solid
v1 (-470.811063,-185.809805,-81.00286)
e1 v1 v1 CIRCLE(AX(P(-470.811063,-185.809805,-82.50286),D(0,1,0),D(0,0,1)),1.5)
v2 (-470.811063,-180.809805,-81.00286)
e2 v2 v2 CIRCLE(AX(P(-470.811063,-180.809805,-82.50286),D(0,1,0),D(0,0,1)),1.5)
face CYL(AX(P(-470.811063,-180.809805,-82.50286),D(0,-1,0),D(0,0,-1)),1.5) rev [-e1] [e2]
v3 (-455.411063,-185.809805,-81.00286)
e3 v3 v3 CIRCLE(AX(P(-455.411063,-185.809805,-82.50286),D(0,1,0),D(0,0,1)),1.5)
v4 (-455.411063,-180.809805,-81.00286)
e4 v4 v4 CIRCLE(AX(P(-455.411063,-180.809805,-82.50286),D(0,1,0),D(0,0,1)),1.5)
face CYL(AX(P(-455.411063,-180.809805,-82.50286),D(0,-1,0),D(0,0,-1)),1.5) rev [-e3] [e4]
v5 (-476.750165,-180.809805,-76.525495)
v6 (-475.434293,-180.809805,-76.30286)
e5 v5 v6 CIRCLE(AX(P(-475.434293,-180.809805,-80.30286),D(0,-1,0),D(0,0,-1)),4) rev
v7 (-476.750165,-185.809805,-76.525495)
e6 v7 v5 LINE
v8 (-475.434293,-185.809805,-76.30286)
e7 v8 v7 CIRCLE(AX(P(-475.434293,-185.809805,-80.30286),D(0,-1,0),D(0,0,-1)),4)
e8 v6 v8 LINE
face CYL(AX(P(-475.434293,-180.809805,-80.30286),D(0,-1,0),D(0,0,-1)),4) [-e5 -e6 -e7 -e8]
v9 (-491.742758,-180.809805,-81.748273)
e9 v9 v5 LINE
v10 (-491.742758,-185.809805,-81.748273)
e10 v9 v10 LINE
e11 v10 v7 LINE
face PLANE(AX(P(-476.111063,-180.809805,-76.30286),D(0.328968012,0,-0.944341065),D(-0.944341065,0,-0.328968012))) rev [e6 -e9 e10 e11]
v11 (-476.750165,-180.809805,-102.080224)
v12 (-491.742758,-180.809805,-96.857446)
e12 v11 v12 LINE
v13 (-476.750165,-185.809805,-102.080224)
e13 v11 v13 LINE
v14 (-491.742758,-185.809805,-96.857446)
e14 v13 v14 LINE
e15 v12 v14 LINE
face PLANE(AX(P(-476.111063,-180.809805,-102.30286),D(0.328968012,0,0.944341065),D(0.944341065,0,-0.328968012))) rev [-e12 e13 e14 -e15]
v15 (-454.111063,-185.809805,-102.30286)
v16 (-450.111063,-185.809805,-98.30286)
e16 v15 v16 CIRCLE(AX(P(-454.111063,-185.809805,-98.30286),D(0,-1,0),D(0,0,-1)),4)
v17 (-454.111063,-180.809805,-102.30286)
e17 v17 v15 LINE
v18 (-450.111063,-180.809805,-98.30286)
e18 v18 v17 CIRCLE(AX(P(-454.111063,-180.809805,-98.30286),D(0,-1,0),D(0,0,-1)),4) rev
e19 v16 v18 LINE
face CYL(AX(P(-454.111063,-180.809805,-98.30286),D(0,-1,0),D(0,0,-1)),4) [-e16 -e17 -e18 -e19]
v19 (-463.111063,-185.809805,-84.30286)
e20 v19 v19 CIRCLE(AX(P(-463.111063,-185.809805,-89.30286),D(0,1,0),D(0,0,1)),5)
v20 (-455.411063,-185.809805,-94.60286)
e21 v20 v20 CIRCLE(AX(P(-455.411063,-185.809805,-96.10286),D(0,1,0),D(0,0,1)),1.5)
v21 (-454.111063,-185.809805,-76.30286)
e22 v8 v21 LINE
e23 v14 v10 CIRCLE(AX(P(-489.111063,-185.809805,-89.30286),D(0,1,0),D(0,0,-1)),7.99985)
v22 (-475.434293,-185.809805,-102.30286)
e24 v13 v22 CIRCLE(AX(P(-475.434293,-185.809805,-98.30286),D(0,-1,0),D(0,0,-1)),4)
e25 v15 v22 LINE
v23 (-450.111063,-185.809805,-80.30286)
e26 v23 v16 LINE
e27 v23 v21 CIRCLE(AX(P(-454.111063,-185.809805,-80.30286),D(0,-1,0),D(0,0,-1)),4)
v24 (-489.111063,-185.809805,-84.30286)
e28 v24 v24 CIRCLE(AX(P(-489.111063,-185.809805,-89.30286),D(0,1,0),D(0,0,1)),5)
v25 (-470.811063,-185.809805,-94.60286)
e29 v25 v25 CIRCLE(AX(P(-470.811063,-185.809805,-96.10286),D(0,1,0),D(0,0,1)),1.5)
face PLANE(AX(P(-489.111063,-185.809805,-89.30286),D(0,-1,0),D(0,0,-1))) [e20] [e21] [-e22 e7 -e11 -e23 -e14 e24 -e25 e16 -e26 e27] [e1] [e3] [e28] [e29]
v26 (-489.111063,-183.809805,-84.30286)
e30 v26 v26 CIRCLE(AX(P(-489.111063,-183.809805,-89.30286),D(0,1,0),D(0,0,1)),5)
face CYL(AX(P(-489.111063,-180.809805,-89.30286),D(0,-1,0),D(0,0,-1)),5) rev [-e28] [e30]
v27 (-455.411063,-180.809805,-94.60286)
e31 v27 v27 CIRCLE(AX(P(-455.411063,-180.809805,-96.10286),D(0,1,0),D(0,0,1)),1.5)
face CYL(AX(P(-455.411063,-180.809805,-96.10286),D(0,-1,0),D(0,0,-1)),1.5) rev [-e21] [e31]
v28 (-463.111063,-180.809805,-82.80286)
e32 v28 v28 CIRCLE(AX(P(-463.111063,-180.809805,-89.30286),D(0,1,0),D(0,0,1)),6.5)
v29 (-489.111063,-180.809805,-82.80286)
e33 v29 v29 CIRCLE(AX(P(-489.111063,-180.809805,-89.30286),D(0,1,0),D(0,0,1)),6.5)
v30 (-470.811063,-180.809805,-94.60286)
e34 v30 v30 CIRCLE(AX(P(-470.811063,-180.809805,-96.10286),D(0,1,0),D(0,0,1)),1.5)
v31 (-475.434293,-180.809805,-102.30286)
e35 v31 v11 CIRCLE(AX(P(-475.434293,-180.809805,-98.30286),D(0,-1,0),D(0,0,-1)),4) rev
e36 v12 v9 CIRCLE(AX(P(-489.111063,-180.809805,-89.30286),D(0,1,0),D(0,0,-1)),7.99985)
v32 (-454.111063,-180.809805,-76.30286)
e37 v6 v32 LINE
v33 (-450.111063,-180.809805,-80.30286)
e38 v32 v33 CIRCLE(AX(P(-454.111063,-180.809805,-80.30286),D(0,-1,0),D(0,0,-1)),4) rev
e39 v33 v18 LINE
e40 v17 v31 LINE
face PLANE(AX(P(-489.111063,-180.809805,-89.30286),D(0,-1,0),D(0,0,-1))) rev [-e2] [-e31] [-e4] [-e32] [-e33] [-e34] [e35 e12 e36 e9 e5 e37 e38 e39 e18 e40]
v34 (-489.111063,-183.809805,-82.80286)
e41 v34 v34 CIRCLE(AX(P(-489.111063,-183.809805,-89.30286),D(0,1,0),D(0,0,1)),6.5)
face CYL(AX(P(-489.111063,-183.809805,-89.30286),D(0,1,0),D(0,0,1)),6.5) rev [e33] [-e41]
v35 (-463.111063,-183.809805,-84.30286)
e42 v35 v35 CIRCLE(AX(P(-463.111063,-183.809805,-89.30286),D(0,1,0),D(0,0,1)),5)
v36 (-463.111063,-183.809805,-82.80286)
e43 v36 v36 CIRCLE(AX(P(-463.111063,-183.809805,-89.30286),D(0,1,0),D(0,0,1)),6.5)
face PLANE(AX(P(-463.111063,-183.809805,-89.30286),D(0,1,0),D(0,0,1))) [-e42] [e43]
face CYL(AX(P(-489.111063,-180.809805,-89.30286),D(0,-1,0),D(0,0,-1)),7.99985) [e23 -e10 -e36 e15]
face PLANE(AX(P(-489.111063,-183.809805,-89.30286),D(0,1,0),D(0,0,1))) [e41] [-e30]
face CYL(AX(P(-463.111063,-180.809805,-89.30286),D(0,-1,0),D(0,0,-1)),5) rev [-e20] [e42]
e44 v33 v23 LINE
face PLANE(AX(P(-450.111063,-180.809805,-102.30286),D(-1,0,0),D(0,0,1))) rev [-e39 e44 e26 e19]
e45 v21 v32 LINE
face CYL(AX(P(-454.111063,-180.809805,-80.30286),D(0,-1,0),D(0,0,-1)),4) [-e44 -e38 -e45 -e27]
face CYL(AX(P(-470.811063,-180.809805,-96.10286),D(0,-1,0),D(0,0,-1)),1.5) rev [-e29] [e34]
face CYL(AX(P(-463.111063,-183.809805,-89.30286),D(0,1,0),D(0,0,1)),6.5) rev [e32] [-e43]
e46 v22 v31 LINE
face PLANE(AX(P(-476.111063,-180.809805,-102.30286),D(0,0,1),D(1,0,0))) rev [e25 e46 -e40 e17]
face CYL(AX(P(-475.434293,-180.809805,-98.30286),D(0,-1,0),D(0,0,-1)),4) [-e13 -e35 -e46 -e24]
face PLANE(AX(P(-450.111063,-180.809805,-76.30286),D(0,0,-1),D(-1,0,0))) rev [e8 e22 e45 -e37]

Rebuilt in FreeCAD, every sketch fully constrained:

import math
import FreeCAD as App
import Part
import Sketcher


def edges_at(feature, points):
    """Names of the edges that pass closest to the given points."""
    edges = feature.Shape.Edges
    near = lambda p: min(range(len(edges)), key=lambda i: edges[i].distToShape(Part.Vertex(*p))[0])
    return sorted({f"Edge{near(p) + 1}" for p in points})

doc = App.newDocument("Part")
body = doc.addObject("PartDesign::Body", "Body")

# Sketch on XZ plane
sketch1 = doc.addObject("Sketcher::SketchObject", "Sketch")
body.addObject(sketch1)
sketch1.AttachmentSupport = (doc.XZ_Plane, [""])
sketch1.MapMode = "FlatFace"
sketch1.AttachmentOffset = App.Placement(App.Vector(0, 0, 185.809805), App.Rotation())
sketch1.addGeometry(Part.LineSegment(App.Vector(-476.1, -76.3, 0), App.Vector(-450.1, -76.3, 0)), False)
sketch1.addGeometry(Part.LineSegment(App.Vector(-450.1, -76.3, 0), App.Vector(-450.1, -102.3, 0)), False)
sketch1.addGeometry(Part.LineSegment(App.Vector(-450.1, -102.3, 0), App.Vector(-476.1, -102.3, 0)), False)
sketch1.addGeometry(Part.LineSegment(App.Vector(-476.1, -102.3, 0), App.Vector(-491.7, -96.9, 0)), False)
sketch1.addGeometry(Part.ArcOfCircle(Part.Circle(App.Vector(-489.1, -89.3, 0), App.Vector(0, 0, 1), 8), math.radians(109), math.radians(251)), False)
sketch1.addGeometry(Part.LineSegment(App.Vector(-491.7, -81.7, 0), App.Vector(-476.1, -76.3, 0)), False)
sketch1.addGeometry(Part.Circle(App.Vector(-455.4, -82.5, 0), App.Vector(0, 0, 1), 1.5), False)
sketch1.addGeometry(Part.Circle(App.Vector(-470.8, -82.5, 0), App.Vector(0, 0, 1), 1.5), False)
sketch1.addGeometry(Part.Circle(App.Vector(-463.1, -89.3, 0), App.Vector(0, 0, 1), 5), False)
sketch1.addGeometry(Part.Circle(App.Vector(-489.1, -89.3, 0), App.Vector(0, 0, 1), 5), False)
sketch1.addGeometry(Part.Circle(App.Vector(-455.4, -96.1, 0), App.Vector(0, 0, 1), 1.5), False)
sketch1.addGeometry(Part.Circle(App.Vector(-470.8, -96.1, 0), App.Vector(0, 0, 1), 1.5), False)
sketch1.addConstraint(Sketcher.Constraint("Coincident", 0, 2, 1, 1))
sketch1.addConstraint(Sketcher.Constraint("Coincident", 1, 2, 2, 1))
sketch1.addConstraint(Sketcher.Constraint("Coincident", 2, 2, 3, 1))
sketch1.addConstraint(Sketcher.Constraint("Tangent", 3, 2, 4, 2))
sketch1.addConstraint(Sketcher.Constraint("Tangent", 4, 1, 5, 1))
sketch1.addConstraint(Sketcher.Constraint("Coincident", 5, 2, 0, 1))
sketch1.addConstraint(Sketcher.Constraint("Horizontal", 0))
sketch1.addConstraint(Sketcher.Constraint("Vertical", 1))
sketch1.addConstraint(Sketcher.Constraint("Horizontal", 2))
sketch1.addConstraint(Sketcher.Constraint("Coincident", 9, 3, 4, 3))
sketch1.addConstraint(Sketcher.Constraint("Equal", 6, 7))
sketch1.addConstraint(Sketcher.Constraint("Equal", 8, 9))
sketch1.addConstraint(Sketcher.Constraint("Equal", 7, 10))
sketch1.addConstraint(Sketcher.Constraint("Equal", 10, 11))
sketch1.addConstraint(Sketcher.Constraint("Horizontal", 6, 3, 7, 3))
sketch1.addConstraint(Sketcher.Constraint("Horizontal", 4, 3, 8, 3))
sketch1.addConstraint(Sketcher.Constraint("Horizontal", 10, 3, 11, 3))
sketch1.addConstraint(Sketcher.Constraint("Vertical", 6, 3, 10, 3))
sketch1.addConstraint(Sketcher.Constraint("Vertical", 7, 3, 11, 3))
sketch1.addConstraint(Sketcher.Constraint("Vertical", 3, 2, 4, 1))
sketch1.addConstraint(Sketcher.Constraint("Vertical", 2, 2, 5, 2))
sketch1.addConstraint(Sketcher.Constraint("Equal", 2, 1))
sketch1.addConstraint(Sketcher.Constraint("Diameter", 6, 3.0))
sketch1.addConstraint(Sketcher.Constraint("Diameter", 8, 10.0))
sketch1.addConstraint(Sketcher.Constraint("DistanceX", 0, 1, 0, 2, 26.0))
sketch1.addConstraint(Sketcher.Constraint("DistanceX", 4, 3, 8, 3, 26.0))
sketch1.addConstraint(Sketcher.Constraint("DistanceX", 8, 3, 0, 2, 13.0))
sketch1.addConstraint(Sketcher.Constraint("DistanceX", 4, 3, 6, 3, 33.7))
sketch1.addConstraint(Sketcher.Constraint("DistanceY", 4, 3, 6, 3, 6.8))
sketch1.addConstraint(Sketcher.Constraint("DistanceX", 7, 3, 6, 3, 15.4))
sketch1.addConstraint(Sketcher.Constraint("DistanceY", 10, 3, 8, 3, 6.8))
sketch1.addConstraint(Sketcher.Constraint("Radius", 4, 7.99985))
sketch1.addConstraint(Sketcher.Constraint("DistanceY", 4, 3, -1, 1, 89.30286))
sketch1.addConstraint(Sketcher.Constraint("DistanceX", 4, 3, -1, 1, 489.111063))
pad1 = doc.addObject("PartDesign::Pad", "Pad")
body.addObject(pad1)
pad1.Profile = sketch1
pad1.Length = 5
pad1.Reversed = True

# Sketch on XZ plane
sketch2 = doc.addObject("Sketcher::SketchObject", "Sketch001")
body.addObject(sketch2)
sketch2.AttachmentSupport = (doc.XZ_Plane, [""])
sketch2.MapMode = "FlatFace"
sketch2.AttachmentOffset = App.Placement(App.Vector(0, 0, 180.809805), App.Rotation())
sketch2.addGeometry(Part.Circle(App.Vector(-463, -89, 0), App.Vector(0, 0, 1), 6), False)
sketch2.addGeometry(Part.Circle(App.Vector(-489, -89, 0), App.Vector(0, 0, 1), 6), False)
sketch2.addConstraint(Sketcher.Constraint("Equal", 0, 1))
sketch2.addConstraint(Sketcher.Constraint("Horizontal", 0, 3, 1, 3))
sketch2.addConstraint(Sketcher.Constraint("Diameter", 0, 13.0))
sketch2.addConstraint(Sketcher.Constraint("DistanceX", 1, 3, 0, 3, 26.0))
sketch2.addConstraint(Sketcher.Constraint("DistanceY", 0, 3, -1, 1, 89.30286))
sketch2.addConstraint(Sketcher.Constraint("DistanceX", 0, 3, -1, 1, 463.111063))
pocket1 = doc.addObject("PartDesign::Pocket", "Pocket")
body.addObject(pocket1)
pocket1.Profile = sketch2
pocket1.Length = 3
pocket1.Reversed = True
doc.recompute()

fillet = doc.addObject("PartDesign::Fillet", "Fillet")
body.addObject(fillet)
fillet.Base = (pocket1, edges_at(pocket1, [
    (-476.111, -183.31, -102.303),
    (-450.111, -183.31, -102.303),
    (-450.111, -183.31, -76.303),
    (-476.111, -183.31, -76.303),
]))
fillet.Radius = 4

doc.recompute()
